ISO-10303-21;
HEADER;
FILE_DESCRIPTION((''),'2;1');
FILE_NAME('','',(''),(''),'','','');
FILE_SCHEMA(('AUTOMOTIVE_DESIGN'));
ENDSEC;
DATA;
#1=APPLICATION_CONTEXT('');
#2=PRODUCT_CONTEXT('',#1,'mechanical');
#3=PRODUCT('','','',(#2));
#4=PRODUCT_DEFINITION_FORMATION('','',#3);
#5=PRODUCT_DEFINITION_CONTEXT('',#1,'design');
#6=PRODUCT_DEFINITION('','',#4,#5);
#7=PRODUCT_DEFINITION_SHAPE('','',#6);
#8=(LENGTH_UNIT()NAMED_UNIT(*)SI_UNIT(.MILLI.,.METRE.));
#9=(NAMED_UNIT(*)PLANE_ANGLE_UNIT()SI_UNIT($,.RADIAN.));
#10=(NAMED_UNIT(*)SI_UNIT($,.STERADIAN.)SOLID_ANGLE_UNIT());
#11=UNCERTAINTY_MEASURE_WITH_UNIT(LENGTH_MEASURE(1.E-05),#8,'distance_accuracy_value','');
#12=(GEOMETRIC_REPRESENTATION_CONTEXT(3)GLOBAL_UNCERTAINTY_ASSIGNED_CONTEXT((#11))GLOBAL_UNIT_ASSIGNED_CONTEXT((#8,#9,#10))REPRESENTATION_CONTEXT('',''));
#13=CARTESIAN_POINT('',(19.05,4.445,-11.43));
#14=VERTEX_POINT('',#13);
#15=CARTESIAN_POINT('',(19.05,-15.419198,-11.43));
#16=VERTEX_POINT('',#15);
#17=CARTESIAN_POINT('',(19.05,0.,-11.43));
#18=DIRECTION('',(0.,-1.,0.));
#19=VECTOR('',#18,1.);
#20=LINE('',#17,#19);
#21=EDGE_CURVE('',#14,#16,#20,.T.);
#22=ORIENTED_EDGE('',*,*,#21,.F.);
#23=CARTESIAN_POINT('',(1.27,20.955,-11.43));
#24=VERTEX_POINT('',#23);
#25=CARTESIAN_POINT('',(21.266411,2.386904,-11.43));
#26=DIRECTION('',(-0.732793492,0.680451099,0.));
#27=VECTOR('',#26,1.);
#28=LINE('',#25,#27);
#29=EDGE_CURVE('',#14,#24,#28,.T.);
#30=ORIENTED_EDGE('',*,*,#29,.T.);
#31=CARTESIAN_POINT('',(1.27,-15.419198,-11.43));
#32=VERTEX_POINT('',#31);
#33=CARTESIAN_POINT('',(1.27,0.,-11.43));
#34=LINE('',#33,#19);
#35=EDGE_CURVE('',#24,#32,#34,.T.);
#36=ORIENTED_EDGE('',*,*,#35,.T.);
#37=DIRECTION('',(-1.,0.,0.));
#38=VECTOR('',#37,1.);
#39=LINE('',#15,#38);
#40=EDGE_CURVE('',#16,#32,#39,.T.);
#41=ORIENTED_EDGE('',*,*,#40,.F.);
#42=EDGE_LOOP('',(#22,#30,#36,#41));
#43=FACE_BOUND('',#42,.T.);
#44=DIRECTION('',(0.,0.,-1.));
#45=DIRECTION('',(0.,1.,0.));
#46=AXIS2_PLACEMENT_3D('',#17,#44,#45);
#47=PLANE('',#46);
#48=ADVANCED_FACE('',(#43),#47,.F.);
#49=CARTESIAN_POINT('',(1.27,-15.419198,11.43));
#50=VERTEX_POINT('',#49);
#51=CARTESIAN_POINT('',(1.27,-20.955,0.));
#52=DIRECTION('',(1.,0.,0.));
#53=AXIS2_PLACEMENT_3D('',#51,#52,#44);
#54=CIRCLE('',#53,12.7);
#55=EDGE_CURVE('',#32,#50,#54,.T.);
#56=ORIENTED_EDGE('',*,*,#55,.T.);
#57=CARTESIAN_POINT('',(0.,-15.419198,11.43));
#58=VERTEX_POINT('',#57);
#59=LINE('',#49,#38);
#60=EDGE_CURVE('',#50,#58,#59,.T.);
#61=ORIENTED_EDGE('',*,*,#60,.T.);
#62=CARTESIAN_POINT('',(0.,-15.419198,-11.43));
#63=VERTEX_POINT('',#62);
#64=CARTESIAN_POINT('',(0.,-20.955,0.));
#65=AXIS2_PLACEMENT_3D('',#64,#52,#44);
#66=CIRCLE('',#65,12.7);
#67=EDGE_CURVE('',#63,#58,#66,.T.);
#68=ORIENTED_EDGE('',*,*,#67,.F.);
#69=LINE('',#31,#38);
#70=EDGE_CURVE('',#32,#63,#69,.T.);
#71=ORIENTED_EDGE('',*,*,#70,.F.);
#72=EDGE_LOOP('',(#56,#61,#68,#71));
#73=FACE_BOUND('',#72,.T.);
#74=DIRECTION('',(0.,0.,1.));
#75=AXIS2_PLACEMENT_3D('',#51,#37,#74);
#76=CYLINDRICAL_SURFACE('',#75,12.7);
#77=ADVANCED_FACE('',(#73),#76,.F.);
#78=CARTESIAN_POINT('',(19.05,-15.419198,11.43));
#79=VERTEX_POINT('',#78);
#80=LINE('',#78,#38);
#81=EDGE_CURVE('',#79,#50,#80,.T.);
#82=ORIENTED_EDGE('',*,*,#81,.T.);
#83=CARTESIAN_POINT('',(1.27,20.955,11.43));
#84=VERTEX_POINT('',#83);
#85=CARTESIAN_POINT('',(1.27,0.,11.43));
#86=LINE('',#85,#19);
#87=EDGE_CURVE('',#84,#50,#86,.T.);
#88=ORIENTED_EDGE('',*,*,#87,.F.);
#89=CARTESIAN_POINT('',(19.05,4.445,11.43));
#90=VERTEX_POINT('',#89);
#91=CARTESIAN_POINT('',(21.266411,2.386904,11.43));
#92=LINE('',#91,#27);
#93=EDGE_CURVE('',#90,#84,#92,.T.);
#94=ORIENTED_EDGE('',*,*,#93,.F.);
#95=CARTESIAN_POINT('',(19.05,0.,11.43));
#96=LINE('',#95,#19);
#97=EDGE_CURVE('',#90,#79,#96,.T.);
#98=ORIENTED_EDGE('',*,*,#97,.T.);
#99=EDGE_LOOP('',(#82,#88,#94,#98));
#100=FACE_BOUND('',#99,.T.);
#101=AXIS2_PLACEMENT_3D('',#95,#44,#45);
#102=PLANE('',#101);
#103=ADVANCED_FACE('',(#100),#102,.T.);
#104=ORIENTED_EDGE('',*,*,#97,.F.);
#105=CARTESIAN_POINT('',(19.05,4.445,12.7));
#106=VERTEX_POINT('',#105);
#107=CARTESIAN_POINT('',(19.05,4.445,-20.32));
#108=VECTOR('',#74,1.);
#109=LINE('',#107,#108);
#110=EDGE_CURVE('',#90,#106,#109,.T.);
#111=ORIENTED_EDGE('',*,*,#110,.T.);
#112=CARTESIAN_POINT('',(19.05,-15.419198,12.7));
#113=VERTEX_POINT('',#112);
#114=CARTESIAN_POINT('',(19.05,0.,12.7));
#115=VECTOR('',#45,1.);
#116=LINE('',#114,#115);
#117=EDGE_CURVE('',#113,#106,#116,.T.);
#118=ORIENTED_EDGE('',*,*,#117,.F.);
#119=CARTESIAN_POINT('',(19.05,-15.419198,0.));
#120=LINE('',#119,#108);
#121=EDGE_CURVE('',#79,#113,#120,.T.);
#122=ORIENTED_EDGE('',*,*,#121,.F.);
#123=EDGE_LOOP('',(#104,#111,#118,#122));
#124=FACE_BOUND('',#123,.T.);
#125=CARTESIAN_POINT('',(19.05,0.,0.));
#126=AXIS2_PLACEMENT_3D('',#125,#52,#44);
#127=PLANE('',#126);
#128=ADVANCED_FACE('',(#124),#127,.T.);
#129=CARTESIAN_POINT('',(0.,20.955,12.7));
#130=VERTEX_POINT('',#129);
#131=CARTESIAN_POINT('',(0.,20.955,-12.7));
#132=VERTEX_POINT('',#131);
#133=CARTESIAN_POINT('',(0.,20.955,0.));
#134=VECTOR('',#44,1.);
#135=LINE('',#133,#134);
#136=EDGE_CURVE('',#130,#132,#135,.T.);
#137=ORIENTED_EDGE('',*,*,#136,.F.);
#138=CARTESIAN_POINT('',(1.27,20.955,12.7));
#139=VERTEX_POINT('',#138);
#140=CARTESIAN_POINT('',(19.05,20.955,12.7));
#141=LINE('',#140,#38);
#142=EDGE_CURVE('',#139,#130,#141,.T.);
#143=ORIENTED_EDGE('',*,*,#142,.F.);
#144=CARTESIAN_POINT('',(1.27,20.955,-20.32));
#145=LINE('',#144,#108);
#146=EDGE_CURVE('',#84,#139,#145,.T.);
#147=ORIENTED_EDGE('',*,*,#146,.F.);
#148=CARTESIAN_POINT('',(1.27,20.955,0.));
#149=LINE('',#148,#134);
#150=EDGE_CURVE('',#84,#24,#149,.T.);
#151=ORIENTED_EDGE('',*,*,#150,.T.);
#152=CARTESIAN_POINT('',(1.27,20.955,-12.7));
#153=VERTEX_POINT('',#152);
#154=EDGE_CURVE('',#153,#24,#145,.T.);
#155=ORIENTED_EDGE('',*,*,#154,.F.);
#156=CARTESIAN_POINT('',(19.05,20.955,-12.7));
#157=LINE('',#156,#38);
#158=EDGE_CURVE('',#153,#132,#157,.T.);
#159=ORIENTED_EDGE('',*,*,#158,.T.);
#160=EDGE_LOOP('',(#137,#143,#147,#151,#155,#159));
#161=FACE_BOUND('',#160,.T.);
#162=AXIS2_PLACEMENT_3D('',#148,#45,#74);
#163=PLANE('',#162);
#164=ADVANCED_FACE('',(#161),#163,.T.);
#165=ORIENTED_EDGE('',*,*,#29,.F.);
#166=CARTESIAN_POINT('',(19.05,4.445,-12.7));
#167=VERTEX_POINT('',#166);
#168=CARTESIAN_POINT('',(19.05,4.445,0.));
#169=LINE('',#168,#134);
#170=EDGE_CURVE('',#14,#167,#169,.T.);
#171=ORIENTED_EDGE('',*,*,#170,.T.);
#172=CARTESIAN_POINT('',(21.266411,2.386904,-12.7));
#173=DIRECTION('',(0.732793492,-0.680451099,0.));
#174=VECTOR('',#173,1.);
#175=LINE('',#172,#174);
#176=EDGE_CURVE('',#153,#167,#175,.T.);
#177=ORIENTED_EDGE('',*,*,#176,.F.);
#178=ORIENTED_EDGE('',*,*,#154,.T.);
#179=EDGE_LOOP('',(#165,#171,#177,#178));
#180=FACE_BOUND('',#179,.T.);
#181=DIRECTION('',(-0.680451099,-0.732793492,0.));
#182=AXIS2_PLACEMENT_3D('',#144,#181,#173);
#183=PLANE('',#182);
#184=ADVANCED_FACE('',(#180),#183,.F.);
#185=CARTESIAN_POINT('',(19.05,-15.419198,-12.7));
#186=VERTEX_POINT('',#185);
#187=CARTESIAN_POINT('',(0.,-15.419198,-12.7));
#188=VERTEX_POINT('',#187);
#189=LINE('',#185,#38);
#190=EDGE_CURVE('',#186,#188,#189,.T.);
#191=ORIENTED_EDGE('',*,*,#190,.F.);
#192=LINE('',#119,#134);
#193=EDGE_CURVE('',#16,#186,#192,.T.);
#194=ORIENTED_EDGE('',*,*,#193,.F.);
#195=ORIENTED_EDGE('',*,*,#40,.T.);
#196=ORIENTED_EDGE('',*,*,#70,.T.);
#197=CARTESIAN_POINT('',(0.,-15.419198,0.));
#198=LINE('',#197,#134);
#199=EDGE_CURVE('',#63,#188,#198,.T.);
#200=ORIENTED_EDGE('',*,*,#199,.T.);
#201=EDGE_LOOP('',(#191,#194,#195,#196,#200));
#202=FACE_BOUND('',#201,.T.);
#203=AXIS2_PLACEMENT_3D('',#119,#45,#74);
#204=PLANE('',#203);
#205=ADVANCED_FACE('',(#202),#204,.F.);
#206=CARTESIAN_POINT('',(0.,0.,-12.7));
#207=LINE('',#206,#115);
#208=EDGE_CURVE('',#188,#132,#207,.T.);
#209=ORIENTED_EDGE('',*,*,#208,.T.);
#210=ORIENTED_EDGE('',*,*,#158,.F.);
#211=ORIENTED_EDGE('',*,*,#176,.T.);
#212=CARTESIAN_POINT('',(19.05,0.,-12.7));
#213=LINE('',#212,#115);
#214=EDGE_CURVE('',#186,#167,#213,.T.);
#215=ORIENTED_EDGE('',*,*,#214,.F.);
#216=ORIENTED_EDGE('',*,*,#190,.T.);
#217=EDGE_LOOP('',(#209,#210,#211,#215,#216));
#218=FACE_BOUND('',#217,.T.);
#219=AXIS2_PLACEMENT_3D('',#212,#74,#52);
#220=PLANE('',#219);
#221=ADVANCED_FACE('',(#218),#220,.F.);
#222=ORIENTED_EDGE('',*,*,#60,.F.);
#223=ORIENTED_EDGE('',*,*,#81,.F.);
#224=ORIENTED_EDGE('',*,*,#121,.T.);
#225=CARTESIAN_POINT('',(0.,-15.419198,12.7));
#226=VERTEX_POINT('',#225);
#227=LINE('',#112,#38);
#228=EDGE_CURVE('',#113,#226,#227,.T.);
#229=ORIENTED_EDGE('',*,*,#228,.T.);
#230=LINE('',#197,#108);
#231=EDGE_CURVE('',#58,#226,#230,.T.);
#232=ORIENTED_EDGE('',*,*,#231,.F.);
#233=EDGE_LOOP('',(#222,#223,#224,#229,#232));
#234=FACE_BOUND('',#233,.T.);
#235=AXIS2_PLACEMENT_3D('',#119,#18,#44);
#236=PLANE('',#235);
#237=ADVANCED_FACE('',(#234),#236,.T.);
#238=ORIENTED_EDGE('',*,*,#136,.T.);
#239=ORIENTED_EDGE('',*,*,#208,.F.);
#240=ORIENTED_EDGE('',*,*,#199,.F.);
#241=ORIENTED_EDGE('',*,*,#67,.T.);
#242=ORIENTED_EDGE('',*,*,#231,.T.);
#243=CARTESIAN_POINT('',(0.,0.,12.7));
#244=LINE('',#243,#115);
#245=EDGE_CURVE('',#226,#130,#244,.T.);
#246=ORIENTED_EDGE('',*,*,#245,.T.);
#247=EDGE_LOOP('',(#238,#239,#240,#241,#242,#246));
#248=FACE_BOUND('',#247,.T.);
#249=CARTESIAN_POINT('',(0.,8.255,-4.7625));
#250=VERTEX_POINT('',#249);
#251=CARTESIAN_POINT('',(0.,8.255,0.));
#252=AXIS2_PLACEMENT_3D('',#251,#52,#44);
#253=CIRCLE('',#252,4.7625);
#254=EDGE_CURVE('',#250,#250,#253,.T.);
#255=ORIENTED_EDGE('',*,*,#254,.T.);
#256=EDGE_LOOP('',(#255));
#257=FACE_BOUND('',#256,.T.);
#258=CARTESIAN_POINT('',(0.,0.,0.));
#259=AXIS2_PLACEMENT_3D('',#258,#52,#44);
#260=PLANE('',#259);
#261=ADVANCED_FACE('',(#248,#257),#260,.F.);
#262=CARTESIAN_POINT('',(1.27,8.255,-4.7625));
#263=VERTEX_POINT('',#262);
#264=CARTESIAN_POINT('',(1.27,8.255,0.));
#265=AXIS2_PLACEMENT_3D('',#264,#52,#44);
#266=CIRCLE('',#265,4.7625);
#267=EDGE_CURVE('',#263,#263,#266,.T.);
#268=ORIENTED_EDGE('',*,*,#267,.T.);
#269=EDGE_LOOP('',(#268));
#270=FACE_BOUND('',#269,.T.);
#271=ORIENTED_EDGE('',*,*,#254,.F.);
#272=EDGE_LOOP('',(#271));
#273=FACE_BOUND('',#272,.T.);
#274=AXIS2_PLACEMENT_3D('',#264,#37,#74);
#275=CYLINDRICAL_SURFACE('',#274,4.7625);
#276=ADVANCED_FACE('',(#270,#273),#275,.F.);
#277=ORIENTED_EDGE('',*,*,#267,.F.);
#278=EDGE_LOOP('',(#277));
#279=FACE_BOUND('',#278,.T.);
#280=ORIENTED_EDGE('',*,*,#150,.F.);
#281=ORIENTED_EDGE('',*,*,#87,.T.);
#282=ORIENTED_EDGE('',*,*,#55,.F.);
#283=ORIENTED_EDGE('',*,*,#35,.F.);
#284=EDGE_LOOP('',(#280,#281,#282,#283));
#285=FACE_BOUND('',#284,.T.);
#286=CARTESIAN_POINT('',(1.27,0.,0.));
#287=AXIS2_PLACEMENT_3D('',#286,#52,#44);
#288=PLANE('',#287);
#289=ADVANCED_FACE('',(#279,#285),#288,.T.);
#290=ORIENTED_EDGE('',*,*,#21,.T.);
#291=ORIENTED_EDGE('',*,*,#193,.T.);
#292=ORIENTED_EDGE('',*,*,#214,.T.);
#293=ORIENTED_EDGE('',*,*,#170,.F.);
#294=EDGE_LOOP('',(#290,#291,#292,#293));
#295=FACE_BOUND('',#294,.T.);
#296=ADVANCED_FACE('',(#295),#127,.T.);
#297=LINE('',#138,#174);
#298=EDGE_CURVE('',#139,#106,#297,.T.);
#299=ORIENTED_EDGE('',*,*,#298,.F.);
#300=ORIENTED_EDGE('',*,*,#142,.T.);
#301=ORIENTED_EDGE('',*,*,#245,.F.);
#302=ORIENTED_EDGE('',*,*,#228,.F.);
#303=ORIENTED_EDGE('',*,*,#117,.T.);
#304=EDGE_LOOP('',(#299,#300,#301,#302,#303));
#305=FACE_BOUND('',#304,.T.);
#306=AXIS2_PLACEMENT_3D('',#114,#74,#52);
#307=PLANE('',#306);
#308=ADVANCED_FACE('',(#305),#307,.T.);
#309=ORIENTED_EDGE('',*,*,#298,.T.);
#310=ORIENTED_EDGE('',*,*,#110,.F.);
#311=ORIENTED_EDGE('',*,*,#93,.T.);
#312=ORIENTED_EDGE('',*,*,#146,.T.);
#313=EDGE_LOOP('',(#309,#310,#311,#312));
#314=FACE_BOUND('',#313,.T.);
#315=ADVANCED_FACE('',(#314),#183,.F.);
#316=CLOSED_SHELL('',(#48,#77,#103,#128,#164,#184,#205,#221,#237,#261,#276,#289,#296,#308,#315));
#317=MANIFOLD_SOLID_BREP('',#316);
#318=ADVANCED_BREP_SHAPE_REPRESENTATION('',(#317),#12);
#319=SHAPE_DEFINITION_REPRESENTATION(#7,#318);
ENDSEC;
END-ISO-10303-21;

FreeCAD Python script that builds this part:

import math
import FreeCAD as App
import Part
import Sketcher
Q = App.Units.Quantity

doc = App.newDocument("Part")
body = doc.addObject("PartDesign::Body", "Body")

# Sketch on YZ plane
sketch1 = doc.addObject("Sketcher::SketchObject", "Sketch")
body.addObject(sketch1)
sketch1.AttachmentSupport = (doc.YZ_Plane, [""])
sketch1.MapMode = "FlatFace"
sketch1.addGeometry([
    Part.LineSegment(App.Vector(20.955, -11.43, 0), App.Vector(20.955, 11.43, 0)),  # 0
    Part.LineSegment(App.Vector(20.955, 11.43, 0), App.Vector(-15.419198, 11.43, 0)),  # 1
    Part.ArcOfCircle(Part.Circle(App.Vector(-20.955, 0, 0), App.Vector(0, 0, 1), 12.7), math.radians(-64.158067), math.radians(64.158067)),  # 2
    Part.LineSegment(App.Vector(-15.419198, -11.43, 0), App.Vector(20.955, -11.43, 0)),  # 3
    Part.Circle(App.Vector(8.255, 0, 0), App.Vector(0, 0, 1), 4.7625),  # 4
], False)
sketch1.addConstraint([
    Sketcher.Constraint("Coincident", 0, 2, 1, 1),
    Sketcher.Constraint("Coincident", 1, 2, 2, 2),
    Sketcher.Constraint("Coincident", 2, 1, 3, 1),
    Sketcher.Constraint("Coincident", 3, 2, 0, 1),
    Sketcher.Constraint("Vertical", 0),
    Sketcher.Constraint("Horizontal", 1),
    Sketcher.Constraint("Horizontal", 3),
    Sketcher.Constraint("Symmetric", 1, 2, 2, 1, -1),
    Sketcher.Constraint("PointOnObject", 4, 3, -1),
    Sketcher.Constraint("Radius", 2, Q("0.5 in")),
    Sketcher.Constraint("Diameter", 4, Q("0.375 in")),
    Sketcher.Constraint("DistanceY", 0, 1, 0, 2, Q("0.9 in")),
    Sketcher.Constraint("DistanceX", 4, 3, 0, 2, Q("0.5 in")),
    Sketcher.Constraint("DistanceX", 2, 3, 4, 3, Q("1.15 in")),
    Sketcher.Constraint("DistanceX", 2, 3, -1, 1, Q("0.825 in")),
])
pad1 = doc.addObject("PartDesign::Pad", "Pad")
body.addObject(pad1)
pad1.Profile = sketch1
pad1.Length = Q("0.05 in")

# Sketch on YZ plane
sketch2 = doc.addObject("Sketcher::SketchObject", "Sketch001")
body.addObject(sketch2)
sketch2.AttachmentSupport = (doc.YZ_Plane, [""])
sketch2.MapMode = "FlatFace"
sketch2.addGeometry([
    Part.LineSegment(App.Vector(20.955, 12.7, 0), App.Vector(-15.419198, 12.7, 0)),  # 0
    Part.LineSegment(App.Vector(-15.419198, 12.7, 0), App.Vector(-15.419198, 11.43, 0)),  # 1
    Part.LineSegment(App.Vector(-15.419198, 11.43, 0), App.Vector(20.955, 11.43, 0)),  # 2
    Part.LineSegment(App.Vector(20.955, 11.43, 0), App.Vector(20.955, 12.7, 0)),  # 3
    Part.LineSegment(App.Vector(20.955, -11.43, 0), App.Vector(-15.419198, -11.43, 0)),  # 4
    Part.LineSegment(App.Vector(-15.419198, -11.43, 0), App.Vector(-15.419198, -12.7, 0)),  # 5
    Part.LineSegment(App.Vector(-15.419198, -12.7, 0), App.Vector(20.955, -12.7, 0)),  # 6
    Part.LineSegment(App.Vector(20.955, -12.7, 0), App.Vector(20.955, -11.43, 0)),  # 7
], False)
sketch2.addConstraint([
    Sketcher.Constraint("Coincident", 0, 2, 1, 1),
    Sketcher.Constraint("Coincident", 1, 2, 2, 1),
    Sketcher.Constraint("Coincident", 2, 2, 3, 1),
    Sketcher.Constraint("Coincident", 3, 2, 0, 1),
    Sketcher.Constraint("Coincident", 4, 2, 5, 1),
    Sketcher.Constraint("Coincident", 5, 2, 6, 1),
    Sketcher.Constraint("Coincident", 6, 2, 7, 1),
    Sketcher.Constraint("Coincident", 7, 2, 4, 1),
    Sketcher.Constraint("Horizontal", 0),
    Sketcher.Constraint("Vertical", 1),
    Sketcher.Constraint("Horizontal", 2),
    Sketcher.Constraint("Vertical", 3),
    Sketcher.Constraint("Horizontal", 4),
    Sketcher.Constraint("Vertical", 5),
    Sketcher.Constraint("Horizontal", 6),
    Sketcher.Constraint("Vertical", 7),
    Sketcher.Constraint("Symmetric", 1, 2, 4, 2, -1),
    Sketcher.Constraint("Symmetric", 3, 2, 6, 2, -1),
    Sketcher.Constraint("DistanceY", 5, 2, 0, 2, Q("1 in")),
    Sketcher.Constraint("DistanceY", 1, 2, 1, 1, Q("0.05 in")),
    Sketcher.Constraint("DistanceX", -1, 1, 2, 2, Q("0.825 in")),
    Sketcher.Constraint("DistanceX", 0, 2, 0, 1, Q("36.374198 mm")),
])
pad2 = doc.addObject("PartDesign::Pad", "Pad001")
body.addObject(pad2)
pad2.Profile = sketch2
pad2.Length = Q("0.75 in")

# Sketch on XY plane
sketch3 = doc.addObject("Sketcher::SketchObject", "Sketch002")
body.addObject(sketch3)
sketch3.AttachmentSupport = (doc.XY_Plane, [""])
sketch3.MapMode = "FlatFace"
sketch3.AttachmentOffset = App.Placement(App.Vector(0, 0, 0.5 * 25.4), App.Rotation())
sketch3.addGeometry([
    Part.LineSegment(App.Vector(1.27, 20.955, 0), App.Vector(19.05, 4.445, 0)),
    Part.LineSegment(App.Vector(19.05, 4.445, 0), App.Vector(19.05, 20.955, 0)),
    Part.LineSegment(App.Vector(19.05, 20.955, 0), App.Vector(1.27, 20.955, 0)),
], False)
sketch3.addConstraint([
    Sketcher.Constraint("Coincident", 0, 2, 1, 1),
    Sketcher.Constraint("Coincident", 1, 2, 2, 1),
    Sketcher.Constraint("Coincident", 2, 2, 0, 1),
    Sketcher.Constraint("Vertical", 1),
    Sketcher.Constraint("Horizontal", 2),
    Sketcher.Constraint("DistanceX", 2, 2, 2, 1, Q("0.7 in")),
    Sketcher.Constraint("DistanceY", 1, 1, 1, 2, Q("0.65 in")),
    Sketcher.Constraint("DistanceX", -1, 1, 0, 2, Q("0.75 in")),
    Sketcher.Constraint("DistanceY", -1, 1, 0, 2, Q("0.175 in")),
])
pocket1 = doc.addObject("PartDesign::Pocket", "Pocket")
body.addObject(pocket1)
pocket1.Profile = sketch3
pocket1.Length = Q("1.3 in")

doc.recompute()
